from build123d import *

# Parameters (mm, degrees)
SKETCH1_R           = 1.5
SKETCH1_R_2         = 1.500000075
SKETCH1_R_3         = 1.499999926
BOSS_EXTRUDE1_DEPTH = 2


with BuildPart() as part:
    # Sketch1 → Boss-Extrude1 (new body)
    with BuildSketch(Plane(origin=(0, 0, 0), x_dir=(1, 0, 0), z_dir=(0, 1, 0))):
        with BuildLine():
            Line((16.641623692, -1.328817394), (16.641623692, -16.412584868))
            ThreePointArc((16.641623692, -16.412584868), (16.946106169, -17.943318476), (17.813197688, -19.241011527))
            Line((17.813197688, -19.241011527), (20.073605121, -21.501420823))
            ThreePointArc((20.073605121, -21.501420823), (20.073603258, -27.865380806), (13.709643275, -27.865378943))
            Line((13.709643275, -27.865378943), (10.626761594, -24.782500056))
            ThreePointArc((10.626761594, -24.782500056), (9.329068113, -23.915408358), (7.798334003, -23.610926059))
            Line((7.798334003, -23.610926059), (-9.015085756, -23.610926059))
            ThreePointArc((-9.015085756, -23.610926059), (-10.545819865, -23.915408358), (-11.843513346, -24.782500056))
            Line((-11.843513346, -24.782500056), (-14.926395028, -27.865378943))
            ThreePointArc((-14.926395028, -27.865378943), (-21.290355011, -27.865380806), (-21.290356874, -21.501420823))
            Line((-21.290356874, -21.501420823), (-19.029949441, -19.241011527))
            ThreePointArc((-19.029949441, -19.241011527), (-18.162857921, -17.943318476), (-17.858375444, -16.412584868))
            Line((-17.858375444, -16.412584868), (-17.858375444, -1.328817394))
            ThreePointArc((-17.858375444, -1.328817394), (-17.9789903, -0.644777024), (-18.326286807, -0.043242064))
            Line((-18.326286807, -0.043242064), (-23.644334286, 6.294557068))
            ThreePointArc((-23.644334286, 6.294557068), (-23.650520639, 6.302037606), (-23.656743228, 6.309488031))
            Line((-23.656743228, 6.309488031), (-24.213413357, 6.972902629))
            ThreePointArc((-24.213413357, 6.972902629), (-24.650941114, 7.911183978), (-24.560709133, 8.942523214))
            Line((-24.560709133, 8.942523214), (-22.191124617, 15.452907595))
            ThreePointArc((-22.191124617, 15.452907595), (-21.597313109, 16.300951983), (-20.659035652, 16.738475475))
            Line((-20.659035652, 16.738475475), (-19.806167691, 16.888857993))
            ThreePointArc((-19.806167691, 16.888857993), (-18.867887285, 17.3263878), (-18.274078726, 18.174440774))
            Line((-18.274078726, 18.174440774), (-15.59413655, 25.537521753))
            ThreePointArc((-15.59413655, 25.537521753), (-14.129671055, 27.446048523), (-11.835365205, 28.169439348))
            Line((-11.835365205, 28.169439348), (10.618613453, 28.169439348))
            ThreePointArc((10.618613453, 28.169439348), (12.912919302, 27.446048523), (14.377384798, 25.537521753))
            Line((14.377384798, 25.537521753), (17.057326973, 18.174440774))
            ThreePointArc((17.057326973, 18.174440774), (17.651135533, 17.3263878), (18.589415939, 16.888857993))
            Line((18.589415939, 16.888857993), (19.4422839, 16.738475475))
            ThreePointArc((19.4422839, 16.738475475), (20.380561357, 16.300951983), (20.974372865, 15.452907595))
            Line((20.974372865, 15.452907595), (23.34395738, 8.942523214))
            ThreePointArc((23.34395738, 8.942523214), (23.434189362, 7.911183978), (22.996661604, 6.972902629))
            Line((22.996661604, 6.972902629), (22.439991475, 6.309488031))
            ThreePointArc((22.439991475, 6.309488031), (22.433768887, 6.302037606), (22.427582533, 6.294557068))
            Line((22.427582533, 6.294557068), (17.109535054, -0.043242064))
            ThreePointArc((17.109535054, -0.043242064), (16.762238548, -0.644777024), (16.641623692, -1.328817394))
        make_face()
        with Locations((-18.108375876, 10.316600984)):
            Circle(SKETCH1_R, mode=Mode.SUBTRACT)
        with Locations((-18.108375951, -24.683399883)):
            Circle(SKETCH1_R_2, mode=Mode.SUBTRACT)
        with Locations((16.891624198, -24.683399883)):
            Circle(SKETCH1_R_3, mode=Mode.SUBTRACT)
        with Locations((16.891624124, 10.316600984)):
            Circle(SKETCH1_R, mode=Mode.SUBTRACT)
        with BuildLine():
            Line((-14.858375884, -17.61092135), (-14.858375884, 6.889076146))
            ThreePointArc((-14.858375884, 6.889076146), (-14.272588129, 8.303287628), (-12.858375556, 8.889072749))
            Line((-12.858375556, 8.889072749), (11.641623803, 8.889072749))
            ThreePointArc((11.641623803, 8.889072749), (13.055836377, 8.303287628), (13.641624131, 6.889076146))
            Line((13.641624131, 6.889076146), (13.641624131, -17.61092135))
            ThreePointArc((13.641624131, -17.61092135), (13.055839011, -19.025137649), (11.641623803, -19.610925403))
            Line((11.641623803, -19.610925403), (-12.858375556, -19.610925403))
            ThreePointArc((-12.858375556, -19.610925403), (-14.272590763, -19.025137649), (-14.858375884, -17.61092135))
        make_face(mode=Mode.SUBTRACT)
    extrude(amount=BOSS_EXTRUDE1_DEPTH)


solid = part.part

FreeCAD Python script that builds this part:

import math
import FreeCAD as App
import Part
import Sketcher
Q = App.Units.Quantity

doc = App.newDocument("Part")
body = doc.addObject("PartDesign::Body", "Body")

# Sketch on XZ plane
sketch1 = body.newObject("Sketcher::SketchObject", "Sketch")
sketch1.AttachmentSupport = (doc.getObject("XZ_Plane"), [""])
sketch1.MapMode = "FlatFace"
sketch1.addGeometry([
    Part.LineSegment(App.Vector(16.642, 16.413, 0), App.Vector(16.642, 1.329, 0)),  # 0
    Part.ArcOfCircle(Part.Circle(App.Vector(18.642, 1.329, 0), App.Vector(0, 0, 1), 2), math.radians(-180), math.radians(-140)),  # 1
    Part.LineSegment(App.Vector(17.11, 0.043, 0), App.Vector(22.428, -6.295, 0)),  # 2
    Part.ArcOfCircle(Part.Circle(App.Vector(23.972, -5.024, 0), App.Vector(0, 0, 1), 2), math.radians(-140.55), math.radians(-139.99)),  # 3
    Part.LineSegment(App.Vector(22.44, -6.309, 0), App.Vector(22.997, -6.973, 0)),  # 4
    Part.ArcOfCircle(Part.Circle(App.Vector(21.465, -8.258, 0), App.Vector(0, 0, 1), 2), math.radians(-20), math.radians(40)),  # 5
    Part.LineSegment(App.Vector(23.344, -8.943, 0), App.Vector(20.974, -15.453, 0)),  # 6
    Part.ArcOfCircle(Part.Circle(App.Vector(19.095, -14.769, 0), App.Vector(0, 0, 1), 2), math.radians(-80), math.radians(-20)),  # 7
    Part.LineSegment(App.Vector(19.442, -16.738, 0), App.Vector(18.589, -16.889, 0)),  # 8
    Part.ArcOfCircle(Part.Circle(App.Vector(18.937, -18.858, 0), App.Vector(0, 0, 1), 2), math.radians(100), math.radians(160)),  # 9
    Part.LineSegment(App.Vector(17.057, -18.174, 0), App.Vector(14.377, -25.538, 0)),  # 10
    Part.ArcOfCircle(Part.Circle(App.Vector(10.619, -24.169, 0), App.Vector(0, 0, 1), 4), math.radians(-90), math.radians(-20)),  # 11
    Part.LineSegment(App.Vector(10.619, -28.169, 0), App.Vector(-11.835, -28.169, 0)),  # 12
    Part.ArcOfCircle(Part.Circle(App.Vector(-11.835, -24.169, 0), App.Vector(0, 0, 1), 4), math.radians(-160), math.radians(-90)),  # 13
    Part.LineSegment(App.Vector(-15.594, -25.538, 0), App.Vector(-18.274, -18.174, 0)),  # 14
    Part.ArcOfCircle(Part.Circle(App.Vector(-20.153, -18.858, 0), App.Vector(0, 0, 1), 2), math.radians(20), math.radians(80)),  # 15
    Part.LineSegment(App.Vector(-19.806, -16.889, 0), App.Vector(-20.659, -16.738, 0)),  # 16
    Part.ArcOfCircle(Part.Circle(App.Vector(-20.312, -14.769, 0), App.Vector(0, 0, 1), 2), math.radians(-160), math.radians(-100)),  # 17
    Part.LineSegment(App.Vector(-22.191, -15.453, 0), App.Vector(-24.561, -8.943, 0)),  # 18
    Part.ArcOfCircle(Part.Circle(App.Vector(-22.681, -8.258, 0), App.Vector(0, 0, 1), 2), math.radians(140), math.radians(200)),  # 19
    Part.LineSegment(App.Vector(-24.213, -6.973, 0), App.Vector(-23.657, -6.309, 0)),  # 20
    Part.ArcOfCircle(Part.Circle(App.Vector(-25.189, -5.024, 0), App.Vector(0, 0, 1), 2), math.radians(-40.01), math.radians(-39.45)),  # 21
    Part.LineSegment(App.Vector(-23.644, -6.295, 0), App.Vector(-18.326, 0.043, 0)),  # 22
    Part.ArcOfCircle(Part.Circle(App.Vector(-19.858, 1.329, 0), App.Vector(0, 0, 1), 2), math.radians(-40), math.radians(0)),  # 23
    Part.LineSegment(App.Vector(-17.858, 1.329, 0), App.Vector(-17.858, 16.413, 0)),  # 24
    Part.ArcOfCircle(Part.Circle(App.Vector(-21.858, 16.413, 0), App.Vector(0, 0, 1), 4), math.radians(0), math.radians(45)),  # 25
    Part.LineSegment(App.Vector(-19.03, 19.241, 0), App.Vector(-21.29, 21.501, 0)),  # 26
    Part.ArcOfCircle(Part.Circle(App.Vector(-18.108, 24.683, 0), App.Vector(0, 0, 1), 4.5), math.radians(45), math.radians(225)),  # 27
    Part.LineSegment(App.Vector(-14.926, 27.865, 0), App.Vector(-11.844, 24.783, 0)),  # 28
    Part.ArcOfCircle(Part.Circle(App.Vector(-9.015, 27.611, 0), App.Vector(0, 0, 1), 4), math.radians(-135), math.radians(-90)),  # 29
    Part.LineSegment(App.Vector(-9.015, 23.611, 0), App.Vector(7.798, 23.611, 0)),  # 30
    Part.ArcOfCircle(Part.Circle(App.Vector(7.798, 27.611, 0), App.Vector(0, 0, 1), 4), math.radians(-90), math.radians(-45)),  # 31
    Part.LineSegment(App.Vector(10.627, 24.783, 0), App.Vector(13.71, 27.865, 0)),  # 32
    Part.ArcOfCircle(Part.Circle(App.Vector(16.892, 24.683, 0), App.Vector(0, 0, 1), 4.5), math.radians(-45), math.radians(135)),  # 33
    Part.LineSegment(App.Vector(20.074, 21.501, 0), App.Vector(17.813, 19.241, 0)),  # 34
    Part.ArcOfCircle(Part.Circle(App.Vector(20.642, 16.413, 0), App.Vector(0, 0, 1), 4), math.radians(135), math.radians(180)),  # 35
    Part.Circle(App.Vector(16.892, 24.683, 0), App.Vector(0, 0, 1), 1.5),  # 36
    Part.Circle(App.Vector(-18.108, 24.683, 0), App.Vector(0, 0, 1), 1.5),  # 37
    Part.LineSegment(App.Vector(-14.858, 17.611, 0), App.Vector(-14.858, -6.889, 0)),  # 38
    Part.ArcOfCircle(Part.Circle(App.Vector(-12.858, -6.889, 0), App.Vector(0, 0, 1), 2), math.radians(-180), math.radians(-90)),  # 39
    Part.LineSegment(App.Vector(-12.858, -8.889, 0), App.Vector(11.642, -8.889, 0)),  # 40
    Part.ArcOfCircle(Part.Circle(App.Vector(11.642, -6.889, 0), App.Vector(0, 0, 1), 2), math.radians(-90), math.radians(0)),  # 41
    Part.LineSegment(App.Vector(13.642, -6.889, 0), App.Vector(13.642, 17.611, 0)),  # 42
    Part.ArcOfCircle(Part.Circle(App.Vector(11.642, 17.611, 0), App.Vector(0, 0, 1), 2), math.radians(0), math.radians(90)),  # 43
    Part.LineSegment(App.Vector(11.642, 19.611, 0), App.Vector(-12.858, 19.611, 0)),  # 44
    Part.ArcOfCircle(Part.Circle(App.Vector(-12.858, 17.611, 0), App.Vector(0, 0, 1), 2), math.radians(90), math.radians(180)),  # 45
    Part.Circle(App.Vector(16.892, -10.317, 0), App.Vector(0, 0, 1), 1.5),  # 46
    Part.Circle(App.Vector(-18.108, -10.317, 0), App.Vector(0, 0, 1), 1.5),  # 47
], False)
sketch1.addConstraint([
    Sketcher.Constraint("Tangent", 0, 2, 1, 1),
    Sketcher.Constraint("Tangent", 1, 2, 2, 1),
    Sketcher.Constraint("Coincident", 2, 2, 3, 1),
    Sketcher.Constraint("Coincident", 3, 2, 4, 1),
    Sketcher.Constraint("Tangent", 4, 2, 5, 2),
    Sketcher.Constraint("Coincident", 5, 1, 6, 1),
    Sketcher.Constraint("Coincident", 6, 2, 7, 2),
    Sketcher.Constraint("Tangent", 7, 1, 8, 1),
    Sketcher.Constraint("Coincident", 8, 2, 9, 1),
    Sketcher.Constraint("Coincident", 9, 2, 10, 1),
    Sketcher.Constraint("Tangent", 10, 2, 11, 2),
    Sketcher.Constraint("Tangent", 11, 1, 12, 1),
    Sketcher.Constraint("Tangent", 12, 2, 13, 2),
    Sketcher.Constraint("Tangent", 13, 1, 14, 1),
    Sketcher.Constraint("Coincident", 14, 2, 15, 1),
    Sketcher.Constraint("Coincident", 15, 2, 16, 1),
    Sketcher.Constraint("Tangent", 16, 2, 17, 2),
    Sketcher.Constraint("Coincident", 17, 1, 18, 1),
    Sketcher.Constraint("Coincident", 18, 2, 19, 2),
    Sketcher.Constraint("Tangent", 19, 1, 20, 1),
    Sketcher.Constraint("Coincident", 20, 2, 21, 1),
    Sketcher.Constraint("Coincident", 21, 2, 22, 1),
    Sketcher.Constraint("Tangent", 22, 2, 23, 1),
    Sketcher.Constraint("Tangent", 23, 2, 24, 1),
    Sketcher.Constraint("Tangent", 24, 2, 25, 1),
    Sketcher.Constraint("Tangent", 25, 2, 26, 1),
    Sketcher.Constraint("Tangent", 26, 2, 27, 2),
    Sketcher.Constraint("Tangent", 27, 1, 28, 1),
    Sketcher.Constraint("Tangent", 28, 2, 29, 1),
    Sketcher.Constraint("Tangent", 29, 2, 30, 1),
    Sketcher.Constraint("Tangent", 30, 2, 31, 1),
    Sketcher.Constraint("Tangent", 31, 2, 32, 1),
    Sketcher.Constraint("Tangent", 32, 2, 33, 2),
    Sketcher.Constraint("Tangent", 33, 1, 34, 1),
    Sketcher.Constraint("Tangent", 34, 2, 35, 1),
    Sketcher.Constraint("Tangent", 35, 2, 0, 1),
    Sketcher.Constraint("Tangent", 38, 2, 39, 1),
    Sketcher.Constraint("Tangent", 39, 2, 40, 1),
    Sketcher.Constraint("Tangent", 40, 2, 41, 1),
    Sketcher.Constraint("Tangent", 41, 2, 42, 1),
    Sketcher.Constraint("Coincident", 42, 2, 43, 1),
    Sketcher.Constraint("Tangent", 43, 2, 44, 1),
    Sketcher.Constraint("Tangent", 44, 2, 45, 1),
    Sketcher.Constraint("Coincident", 45, 2, 38, 1),
    Sketcher.Constraint("Vertical", 0),
    Sketcher.Constraint("Horizontal", 12),
    Sketcher.Constraint("Vertical", 24),
    Sketcher.Constraint("Horizontal", 30),
    Sketcher.Constraint("Vertical", 38),
    Sketcher.Constraint("Horizontal", 40),
    Sketcher.Constraint("Vertical", 42),
    Sketcher.Constraint("Horizontal", 44),
    Sketcher.Constraint("Coincident", 36, 3, 33, 3),
    Sketcher.Constraint("Coincident", 37, 3, 27, 3),
    Sketcher.Constraint("Equal", 1, 5),
    Sketcher.Constraint("Equal", 5, 7),
    Sketcher.Constraint("Equal", 7, 9),
    Sketcher.Constraint("Equal", 11, 13),
    Sketcher.Constraint("Equal", 9, 15),
    Sketcher.Constraint("Equal", 15, 17),
    Sketcher.Constraint("Equal", 17, 19),
    Sketcher.Constraint("Equal", 19, 23),
    Sketcher.Constraint("Equal", 13, 25),
    Sketcher.Constraint("Equal", 25, 29),
    Sketcher.Constraint("Equal", 29, 31),
    Sketcher.Constraint("Equal", 27, 33),
    Sketcher.Constraint("Equal", 31, 35),
    Sketcher.Constraint("Equal", 36, 37),
    Sketcher.Constraint("Equal", 23, 39),
    Sketcher.Constraint("Equal", 39, 41),
    Sketcher.Constraint("Equal", 41, 43),
    Sketcher.Constraint("Equal", 43, 45),
    Sketcher.Constraint("Equal", 37, 46),
    Sketcher.Constraint("Equal", 46, 47),
    Sketcher.Constraint("Parallel", 2, 4),
    Sketcher.Constraint("Parallel", 6, 10),
    Sketcher.Constraint("Parallel", 14, 18),
    Sketcher.Constraint("Parallel", 20, 22),
    Sketcher.Constraint("Parallel", 26, 28),
    Sketcher.Constraint("Perpendicular", 28, 32),
    Sketcher.Constraint("Parallel", 32, 34),
    Sketcher.Constraint("Horizontal", 9, 3, 15, 3),
    Sketcher.Constraint("Horizontal", 7, 3, 17, 3),
    Sketcher.Constraint("Horizontal", 5, 3, 19, 3),
    Sketcher.Constraint("Horizontal", 1, 3, 23, 3),
    Sketcher.Constraint("Horizontal", 27, 3, 33, 3),
    Sketcher.Constraint("Horizontal", 25, 3, 35, 3),
    Sketcher.Constraint("Horizontal", 46, 3, 47, 3),
    Sketcher.Constraint("Horizontal", 10, 2, 13, 1),
    Sketcher.Constraint("Horizontal", 9, 2, 14, 2),
    Sketcher.Constraint("Horizontal", 8, 2, 15, 2),
    Sketcher.Constraint("Horizontal", 7, 1, 16, 2),
    Sketcher.Constraint("Horizontal", 6, 2, 17, 1),
    Sketcher.Constraint("Horizontal", 5, 1, 18, 2),
    Sketcher.Constraint("Horizontal", 4, 2, 19, 1),
    Sketcher.Constraint("Horizontal", 3, 2, 20, 2),
    Sketcher.Constraint("Horizontal", 2, 2, 21, 2),
    Sketcher.Constraint("Horizontal", 28, 2, 31, 2),
    Sketcher.Constraint("Horizontal", 42, 2, 45, 2),
    Sketcher.Constraint("Vertical", 36, 3, 46, 3),
    Sketcher.Constraint("Vertical", 37, 3, 47, 3),
    Sketcher.Constraint("Equal", 44, 38),
    Sketcher.Constraint("Equal", 4, 8),
    Sketcher.Constraint("Diameter", 36, 3.0),
    Sketcher.Constraint("Radius", 1, 2.0),
    Sketcher.Constraint("Radius", 11, 4.0),
    Sketcher.Constraint("Radius", 27, 4.499999),
    Sketcher.Constraint("Angle", 2, Q("-49.999986 deg")),
    Sketcher.Constraint("Angle", 6, Q("-109.999987 deg")),
    Sketcher.Constraint("DistanceX", 40, 1, 40, 2, 24.499999),
    Sketcher.Constraint("Radius", 21, 1.99998),
    Sketcher.Constraint("Radius", 3, 2.000045),
    Sketcher.Constraint("Distance", 26, 3.1967),
    Sketcher.Constraint("DistanceX", 12, 2, 12, 1, 22.453979),
    Sketcher.Constraint("DistanceX", 30, 1, 30, 2, 16.81342),
    Sketcher.Constraint("DistanceY", -1, 1, 27, 3, 24.6834),
    Sketcher.Constraint("DistanceY", 46, 3, -1, 1, 10.316601),
    Sketcher.Constraint("DistanceY", -1, 1, 28, 2, 24.7825),
    Sketcher.Constraint("Distance", 2, 8.273411),
    Sketcher.Constraint("DistanceY", 0, 2, 0, 1, 15.083767),
    Sketcher.Constraint("DistanceY", 3, 3, -1, 1, 5.023679),
    Sketcher.Constraint("DistanceY", 5, 3, -1, 1, 8.258479),
    Sketcher.Constraint("DistanceX", -1, 1, 7, 3, 19.09499),
    Sketcher.Constraint("DistanceY", 7, 3, -1, 1, 14.768859),
    Sketcher.Constraint("DistanceY", 11, 3, -1, 1, 24.169439),
    Sketcher.Constraint("DistanceY", 21, 3, -1, 1, 5.023721),
    Sketcher.Constraint("DistanceX", -1, 1, 3, 2, 22.439991),
    Sketcher.Constraint("DistanceY", 9, 2, -1, 1, 18.174441),
    Sketcher.Constraint("DistanceX", 18, 2, -1, 1, 24.560709),
    Sketcher.Constraint("DistanceY", -1, 1, 42, 2, 17.610921),
    Sketcher.Constraint("Distance", 6, 6.928206),
    Sketcher.Constraint("DistanceX", -1, 1, 9, 3, 18.936715),
    Sketcher.Constraint("DistanceX", 39, 3, -1, 1, 12.858376),
    Sketcher.Constraint("DistanceY", -1, 1, 43, 3, 17.610925),
])
pad1 = body.newObject("PartDesign::Pad", "Pad")
pad1.Profile = sketch1
pad1.Length = 2
pad1.Reversed = True

doc.recompute()
